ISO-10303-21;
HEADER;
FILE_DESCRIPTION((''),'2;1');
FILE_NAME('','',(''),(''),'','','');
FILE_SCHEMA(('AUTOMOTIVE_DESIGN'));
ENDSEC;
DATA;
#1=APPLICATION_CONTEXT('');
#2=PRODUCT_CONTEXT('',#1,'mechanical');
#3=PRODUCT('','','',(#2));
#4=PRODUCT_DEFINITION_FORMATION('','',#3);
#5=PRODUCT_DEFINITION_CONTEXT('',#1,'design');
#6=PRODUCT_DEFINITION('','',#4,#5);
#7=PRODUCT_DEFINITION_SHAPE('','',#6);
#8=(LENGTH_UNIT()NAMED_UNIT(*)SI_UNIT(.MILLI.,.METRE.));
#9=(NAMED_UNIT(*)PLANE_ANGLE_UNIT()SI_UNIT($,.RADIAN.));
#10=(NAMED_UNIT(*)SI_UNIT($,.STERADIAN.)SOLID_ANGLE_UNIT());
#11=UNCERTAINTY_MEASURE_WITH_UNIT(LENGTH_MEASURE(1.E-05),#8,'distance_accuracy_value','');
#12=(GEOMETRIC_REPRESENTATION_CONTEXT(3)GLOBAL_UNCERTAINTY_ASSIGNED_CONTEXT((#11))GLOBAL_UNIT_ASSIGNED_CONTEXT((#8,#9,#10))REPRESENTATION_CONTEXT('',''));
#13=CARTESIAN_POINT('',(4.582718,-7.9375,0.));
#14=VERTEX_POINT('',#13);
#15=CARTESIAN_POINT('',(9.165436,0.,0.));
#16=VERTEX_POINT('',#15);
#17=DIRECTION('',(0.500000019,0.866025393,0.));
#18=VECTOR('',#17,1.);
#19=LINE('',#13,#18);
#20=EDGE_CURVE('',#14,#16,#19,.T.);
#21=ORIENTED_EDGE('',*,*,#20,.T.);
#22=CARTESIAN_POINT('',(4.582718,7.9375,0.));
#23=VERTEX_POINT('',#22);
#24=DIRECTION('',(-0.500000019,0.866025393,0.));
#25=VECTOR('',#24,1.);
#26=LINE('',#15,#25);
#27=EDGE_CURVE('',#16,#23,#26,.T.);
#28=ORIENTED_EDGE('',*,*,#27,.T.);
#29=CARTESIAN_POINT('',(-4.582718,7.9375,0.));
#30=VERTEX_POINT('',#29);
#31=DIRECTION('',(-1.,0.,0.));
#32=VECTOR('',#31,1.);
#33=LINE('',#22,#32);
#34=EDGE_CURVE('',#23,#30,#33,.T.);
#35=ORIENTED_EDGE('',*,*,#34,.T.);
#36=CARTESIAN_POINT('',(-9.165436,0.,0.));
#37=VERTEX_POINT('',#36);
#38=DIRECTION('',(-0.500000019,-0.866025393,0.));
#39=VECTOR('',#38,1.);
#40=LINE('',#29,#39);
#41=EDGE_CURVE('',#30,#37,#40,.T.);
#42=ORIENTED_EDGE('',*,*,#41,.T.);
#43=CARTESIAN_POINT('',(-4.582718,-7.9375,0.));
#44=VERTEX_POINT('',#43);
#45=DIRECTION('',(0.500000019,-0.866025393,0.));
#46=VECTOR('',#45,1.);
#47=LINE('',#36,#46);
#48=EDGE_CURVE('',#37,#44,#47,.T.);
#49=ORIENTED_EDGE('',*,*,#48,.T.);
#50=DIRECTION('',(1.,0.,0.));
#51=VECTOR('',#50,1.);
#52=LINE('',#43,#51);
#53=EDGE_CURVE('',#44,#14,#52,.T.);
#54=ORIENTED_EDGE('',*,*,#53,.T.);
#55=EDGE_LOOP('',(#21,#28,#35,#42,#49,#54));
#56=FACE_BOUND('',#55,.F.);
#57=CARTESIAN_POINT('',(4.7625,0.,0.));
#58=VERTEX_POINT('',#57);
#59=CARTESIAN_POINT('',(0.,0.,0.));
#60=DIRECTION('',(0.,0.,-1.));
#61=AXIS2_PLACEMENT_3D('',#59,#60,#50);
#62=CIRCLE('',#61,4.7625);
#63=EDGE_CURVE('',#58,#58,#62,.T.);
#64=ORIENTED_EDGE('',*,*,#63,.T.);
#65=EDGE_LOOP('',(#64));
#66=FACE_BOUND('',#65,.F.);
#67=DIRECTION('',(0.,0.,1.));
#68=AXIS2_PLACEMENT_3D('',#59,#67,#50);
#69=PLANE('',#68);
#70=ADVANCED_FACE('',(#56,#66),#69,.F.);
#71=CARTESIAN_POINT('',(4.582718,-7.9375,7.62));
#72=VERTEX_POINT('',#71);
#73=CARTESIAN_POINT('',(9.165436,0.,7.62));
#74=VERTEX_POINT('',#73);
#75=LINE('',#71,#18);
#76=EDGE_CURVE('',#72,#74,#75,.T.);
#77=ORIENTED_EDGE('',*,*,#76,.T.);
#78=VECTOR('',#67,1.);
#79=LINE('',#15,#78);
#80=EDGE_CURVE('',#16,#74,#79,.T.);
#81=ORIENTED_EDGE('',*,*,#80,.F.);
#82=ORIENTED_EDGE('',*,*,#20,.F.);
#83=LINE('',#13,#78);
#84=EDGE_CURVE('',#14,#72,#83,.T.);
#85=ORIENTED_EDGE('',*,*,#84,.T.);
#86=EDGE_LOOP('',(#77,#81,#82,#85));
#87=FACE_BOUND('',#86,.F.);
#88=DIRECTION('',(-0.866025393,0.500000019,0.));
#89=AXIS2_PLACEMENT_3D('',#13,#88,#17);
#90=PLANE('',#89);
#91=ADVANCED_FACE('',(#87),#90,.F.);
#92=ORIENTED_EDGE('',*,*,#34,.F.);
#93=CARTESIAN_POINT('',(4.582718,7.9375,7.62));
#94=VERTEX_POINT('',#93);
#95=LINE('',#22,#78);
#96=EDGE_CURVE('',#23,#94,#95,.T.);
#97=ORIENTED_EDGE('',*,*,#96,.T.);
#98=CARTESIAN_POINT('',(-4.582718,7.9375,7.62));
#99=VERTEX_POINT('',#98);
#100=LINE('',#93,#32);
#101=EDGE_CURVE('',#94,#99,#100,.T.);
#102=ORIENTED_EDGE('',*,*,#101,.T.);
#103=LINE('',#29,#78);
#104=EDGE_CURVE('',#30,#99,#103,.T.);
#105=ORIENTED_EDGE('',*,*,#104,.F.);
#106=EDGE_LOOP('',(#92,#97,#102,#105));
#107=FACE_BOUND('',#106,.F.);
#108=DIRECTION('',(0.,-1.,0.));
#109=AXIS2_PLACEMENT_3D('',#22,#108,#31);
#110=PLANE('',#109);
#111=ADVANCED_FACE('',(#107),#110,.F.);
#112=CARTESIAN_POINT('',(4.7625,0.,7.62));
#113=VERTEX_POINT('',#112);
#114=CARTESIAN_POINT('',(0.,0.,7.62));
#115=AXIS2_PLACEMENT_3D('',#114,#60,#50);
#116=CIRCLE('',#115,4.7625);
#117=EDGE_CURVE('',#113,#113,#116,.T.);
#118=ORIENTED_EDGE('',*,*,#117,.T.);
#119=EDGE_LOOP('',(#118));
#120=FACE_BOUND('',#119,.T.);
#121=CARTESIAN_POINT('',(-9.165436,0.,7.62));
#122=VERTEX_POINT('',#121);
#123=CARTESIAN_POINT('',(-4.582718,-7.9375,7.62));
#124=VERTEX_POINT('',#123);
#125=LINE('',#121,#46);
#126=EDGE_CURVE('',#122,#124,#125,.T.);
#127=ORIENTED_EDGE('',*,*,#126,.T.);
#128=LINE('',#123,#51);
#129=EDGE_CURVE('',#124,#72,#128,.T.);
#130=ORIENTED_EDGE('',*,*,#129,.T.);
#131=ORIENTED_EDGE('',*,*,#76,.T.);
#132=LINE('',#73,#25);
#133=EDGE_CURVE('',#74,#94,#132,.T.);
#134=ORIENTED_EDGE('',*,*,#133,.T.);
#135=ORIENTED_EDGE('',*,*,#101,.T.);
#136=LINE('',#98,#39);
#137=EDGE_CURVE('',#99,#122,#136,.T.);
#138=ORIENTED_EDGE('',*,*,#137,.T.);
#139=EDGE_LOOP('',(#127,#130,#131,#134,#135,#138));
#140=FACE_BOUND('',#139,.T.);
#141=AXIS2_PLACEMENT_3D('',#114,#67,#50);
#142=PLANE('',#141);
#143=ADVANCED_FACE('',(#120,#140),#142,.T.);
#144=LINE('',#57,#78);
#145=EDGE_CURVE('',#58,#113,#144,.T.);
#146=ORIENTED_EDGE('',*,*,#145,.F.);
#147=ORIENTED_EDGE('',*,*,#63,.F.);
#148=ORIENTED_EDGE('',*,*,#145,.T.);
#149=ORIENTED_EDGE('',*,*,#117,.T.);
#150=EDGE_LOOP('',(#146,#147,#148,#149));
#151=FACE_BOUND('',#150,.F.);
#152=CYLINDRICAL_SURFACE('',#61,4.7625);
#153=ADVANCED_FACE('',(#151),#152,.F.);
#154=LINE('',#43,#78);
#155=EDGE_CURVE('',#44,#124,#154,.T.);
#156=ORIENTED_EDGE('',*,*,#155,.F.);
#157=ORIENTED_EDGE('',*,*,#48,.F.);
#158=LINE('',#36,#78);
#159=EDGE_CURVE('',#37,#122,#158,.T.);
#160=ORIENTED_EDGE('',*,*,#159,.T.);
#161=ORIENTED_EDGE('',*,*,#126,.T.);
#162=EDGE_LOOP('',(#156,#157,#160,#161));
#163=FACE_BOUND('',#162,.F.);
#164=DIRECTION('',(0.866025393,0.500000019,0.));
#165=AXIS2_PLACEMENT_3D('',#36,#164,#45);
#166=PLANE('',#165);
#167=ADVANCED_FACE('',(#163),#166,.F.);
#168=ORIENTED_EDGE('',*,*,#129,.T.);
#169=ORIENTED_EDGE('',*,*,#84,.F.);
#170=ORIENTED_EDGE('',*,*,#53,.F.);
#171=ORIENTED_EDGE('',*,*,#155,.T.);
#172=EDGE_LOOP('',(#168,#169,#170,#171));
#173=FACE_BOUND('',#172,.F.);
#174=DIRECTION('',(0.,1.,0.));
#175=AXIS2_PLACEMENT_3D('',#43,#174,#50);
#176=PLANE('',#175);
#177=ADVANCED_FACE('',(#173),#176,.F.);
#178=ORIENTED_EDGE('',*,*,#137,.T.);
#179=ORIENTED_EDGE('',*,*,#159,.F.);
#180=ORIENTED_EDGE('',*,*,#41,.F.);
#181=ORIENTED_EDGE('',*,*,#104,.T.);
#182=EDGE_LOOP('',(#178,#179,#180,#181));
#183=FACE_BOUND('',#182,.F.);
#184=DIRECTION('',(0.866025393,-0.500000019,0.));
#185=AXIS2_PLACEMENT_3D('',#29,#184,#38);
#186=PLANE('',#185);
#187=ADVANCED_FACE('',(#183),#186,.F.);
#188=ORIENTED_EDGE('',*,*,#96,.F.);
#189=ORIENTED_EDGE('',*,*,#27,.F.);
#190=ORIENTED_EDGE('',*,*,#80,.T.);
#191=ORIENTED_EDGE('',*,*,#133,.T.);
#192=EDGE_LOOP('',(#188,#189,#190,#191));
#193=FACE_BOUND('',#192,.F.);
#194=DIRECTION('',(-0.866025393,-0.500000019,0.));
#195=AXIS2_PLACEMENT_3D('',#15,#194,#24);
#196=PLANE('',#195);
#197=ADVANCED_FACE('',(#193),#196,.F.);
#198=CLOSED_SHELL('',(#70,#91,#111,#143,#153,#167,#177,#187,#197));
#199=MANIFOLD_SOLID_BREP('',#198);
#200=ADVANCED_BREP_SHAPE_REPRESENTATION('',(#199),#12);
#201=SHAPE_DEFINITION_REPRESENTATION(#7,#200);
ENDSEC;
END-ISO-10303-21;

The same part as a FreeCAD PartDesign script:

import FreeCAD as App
import Part
import Sketcher
Q = App.Units.Quantity


def add_polygon(sketch, points):
    """Adds a closed chain of lines whose ends are joined by coincident constraints."""
    first, n = sketch.GeometryCount, len(points)
    for a, b in zip(points, points[1:] + points[:1]):
        sketch.addGeometry(Part.LineSegment(App.Vector(*a, 0), App.Vector(*b, 0)), False)
    for i in range(n):
        sketch.addConstraint(Sketcher.Constraint("Coincident", first + i, 2, first + (i + 1) % n, 1))

doc = App.newDocument("Part")
body = doc.addObject("PartDesign::Body", "Body")

sketch1 = body.newObject("Sketcher::SketchObject", "Sketch")
sketch1.AttachmentSupport = (doc.getObject("XY_Plane"), [""])
sketch1.MapMode = "FlatFace"
add_polygon(sketch1, [(5, 8), (-5, 8), (-9, 0), (-5, -8), (5, -8), (9, 0)])
sketch1.addConstraint([
    Sketcher.Constraint("Horizontal", 0),
    Sketcher.Constraint("Horizontal", 3),
    Sketcher.Constraint("Symmetric", 0, 2, 3, 2, -1, 1),
    Sketcher.Constraint("Symmetric", 1, 2, 4, 2, -1, 1),
    Sketcher.Constraint("PointOnObject", 1, 2, -1),
    Sketcher.Constraint("Parallel", 2, 5),
    Sketcher.Constraint("Vertical", 0, 2, 2, 2),
    Sketcher.Constraint("Angle", 1, Q("-120.000001 deg")),
    Sketcher.Constraint("DistanceY", -1, 1, 0, 2, Q("0.3125 in")),
    Sketcher.Constraint("DistanceX", 0, 2, 0, 1, Q("9.165436 mm")),
])
pad1 = body.newObject("PartDesign::Pad", "Pad")
pad1.Profile = sketch1
pad1.Length = Q("0.3 in")

sketch2 = body.newObject("Sketcher::SketchObject", "Sketch001")
sketch2.AttachmentSupport = (doc.getObject("XY_Plane"), [""])
sketch2.MapMode = "FlatFace"
sketch2.addGeometry(Part.Circle(App.Vector(0, 0, 0), App.Vector(0, 0, 1), 4.8), False)
sketch2.addConstraint([
    Sketcher.Constraint("Coincident", 0, 3, -1, 1),
    Sketcher.Constraint("Diameter", 0, Q("0.375 in")),
])
pocket1 = body.newObject("PartDesign::Pocket", "Pocket")
pocket1.Profile = sketch2
pocket1.Length = Q("1 in")
pocket1.Reversed = True

doc.recompute()
